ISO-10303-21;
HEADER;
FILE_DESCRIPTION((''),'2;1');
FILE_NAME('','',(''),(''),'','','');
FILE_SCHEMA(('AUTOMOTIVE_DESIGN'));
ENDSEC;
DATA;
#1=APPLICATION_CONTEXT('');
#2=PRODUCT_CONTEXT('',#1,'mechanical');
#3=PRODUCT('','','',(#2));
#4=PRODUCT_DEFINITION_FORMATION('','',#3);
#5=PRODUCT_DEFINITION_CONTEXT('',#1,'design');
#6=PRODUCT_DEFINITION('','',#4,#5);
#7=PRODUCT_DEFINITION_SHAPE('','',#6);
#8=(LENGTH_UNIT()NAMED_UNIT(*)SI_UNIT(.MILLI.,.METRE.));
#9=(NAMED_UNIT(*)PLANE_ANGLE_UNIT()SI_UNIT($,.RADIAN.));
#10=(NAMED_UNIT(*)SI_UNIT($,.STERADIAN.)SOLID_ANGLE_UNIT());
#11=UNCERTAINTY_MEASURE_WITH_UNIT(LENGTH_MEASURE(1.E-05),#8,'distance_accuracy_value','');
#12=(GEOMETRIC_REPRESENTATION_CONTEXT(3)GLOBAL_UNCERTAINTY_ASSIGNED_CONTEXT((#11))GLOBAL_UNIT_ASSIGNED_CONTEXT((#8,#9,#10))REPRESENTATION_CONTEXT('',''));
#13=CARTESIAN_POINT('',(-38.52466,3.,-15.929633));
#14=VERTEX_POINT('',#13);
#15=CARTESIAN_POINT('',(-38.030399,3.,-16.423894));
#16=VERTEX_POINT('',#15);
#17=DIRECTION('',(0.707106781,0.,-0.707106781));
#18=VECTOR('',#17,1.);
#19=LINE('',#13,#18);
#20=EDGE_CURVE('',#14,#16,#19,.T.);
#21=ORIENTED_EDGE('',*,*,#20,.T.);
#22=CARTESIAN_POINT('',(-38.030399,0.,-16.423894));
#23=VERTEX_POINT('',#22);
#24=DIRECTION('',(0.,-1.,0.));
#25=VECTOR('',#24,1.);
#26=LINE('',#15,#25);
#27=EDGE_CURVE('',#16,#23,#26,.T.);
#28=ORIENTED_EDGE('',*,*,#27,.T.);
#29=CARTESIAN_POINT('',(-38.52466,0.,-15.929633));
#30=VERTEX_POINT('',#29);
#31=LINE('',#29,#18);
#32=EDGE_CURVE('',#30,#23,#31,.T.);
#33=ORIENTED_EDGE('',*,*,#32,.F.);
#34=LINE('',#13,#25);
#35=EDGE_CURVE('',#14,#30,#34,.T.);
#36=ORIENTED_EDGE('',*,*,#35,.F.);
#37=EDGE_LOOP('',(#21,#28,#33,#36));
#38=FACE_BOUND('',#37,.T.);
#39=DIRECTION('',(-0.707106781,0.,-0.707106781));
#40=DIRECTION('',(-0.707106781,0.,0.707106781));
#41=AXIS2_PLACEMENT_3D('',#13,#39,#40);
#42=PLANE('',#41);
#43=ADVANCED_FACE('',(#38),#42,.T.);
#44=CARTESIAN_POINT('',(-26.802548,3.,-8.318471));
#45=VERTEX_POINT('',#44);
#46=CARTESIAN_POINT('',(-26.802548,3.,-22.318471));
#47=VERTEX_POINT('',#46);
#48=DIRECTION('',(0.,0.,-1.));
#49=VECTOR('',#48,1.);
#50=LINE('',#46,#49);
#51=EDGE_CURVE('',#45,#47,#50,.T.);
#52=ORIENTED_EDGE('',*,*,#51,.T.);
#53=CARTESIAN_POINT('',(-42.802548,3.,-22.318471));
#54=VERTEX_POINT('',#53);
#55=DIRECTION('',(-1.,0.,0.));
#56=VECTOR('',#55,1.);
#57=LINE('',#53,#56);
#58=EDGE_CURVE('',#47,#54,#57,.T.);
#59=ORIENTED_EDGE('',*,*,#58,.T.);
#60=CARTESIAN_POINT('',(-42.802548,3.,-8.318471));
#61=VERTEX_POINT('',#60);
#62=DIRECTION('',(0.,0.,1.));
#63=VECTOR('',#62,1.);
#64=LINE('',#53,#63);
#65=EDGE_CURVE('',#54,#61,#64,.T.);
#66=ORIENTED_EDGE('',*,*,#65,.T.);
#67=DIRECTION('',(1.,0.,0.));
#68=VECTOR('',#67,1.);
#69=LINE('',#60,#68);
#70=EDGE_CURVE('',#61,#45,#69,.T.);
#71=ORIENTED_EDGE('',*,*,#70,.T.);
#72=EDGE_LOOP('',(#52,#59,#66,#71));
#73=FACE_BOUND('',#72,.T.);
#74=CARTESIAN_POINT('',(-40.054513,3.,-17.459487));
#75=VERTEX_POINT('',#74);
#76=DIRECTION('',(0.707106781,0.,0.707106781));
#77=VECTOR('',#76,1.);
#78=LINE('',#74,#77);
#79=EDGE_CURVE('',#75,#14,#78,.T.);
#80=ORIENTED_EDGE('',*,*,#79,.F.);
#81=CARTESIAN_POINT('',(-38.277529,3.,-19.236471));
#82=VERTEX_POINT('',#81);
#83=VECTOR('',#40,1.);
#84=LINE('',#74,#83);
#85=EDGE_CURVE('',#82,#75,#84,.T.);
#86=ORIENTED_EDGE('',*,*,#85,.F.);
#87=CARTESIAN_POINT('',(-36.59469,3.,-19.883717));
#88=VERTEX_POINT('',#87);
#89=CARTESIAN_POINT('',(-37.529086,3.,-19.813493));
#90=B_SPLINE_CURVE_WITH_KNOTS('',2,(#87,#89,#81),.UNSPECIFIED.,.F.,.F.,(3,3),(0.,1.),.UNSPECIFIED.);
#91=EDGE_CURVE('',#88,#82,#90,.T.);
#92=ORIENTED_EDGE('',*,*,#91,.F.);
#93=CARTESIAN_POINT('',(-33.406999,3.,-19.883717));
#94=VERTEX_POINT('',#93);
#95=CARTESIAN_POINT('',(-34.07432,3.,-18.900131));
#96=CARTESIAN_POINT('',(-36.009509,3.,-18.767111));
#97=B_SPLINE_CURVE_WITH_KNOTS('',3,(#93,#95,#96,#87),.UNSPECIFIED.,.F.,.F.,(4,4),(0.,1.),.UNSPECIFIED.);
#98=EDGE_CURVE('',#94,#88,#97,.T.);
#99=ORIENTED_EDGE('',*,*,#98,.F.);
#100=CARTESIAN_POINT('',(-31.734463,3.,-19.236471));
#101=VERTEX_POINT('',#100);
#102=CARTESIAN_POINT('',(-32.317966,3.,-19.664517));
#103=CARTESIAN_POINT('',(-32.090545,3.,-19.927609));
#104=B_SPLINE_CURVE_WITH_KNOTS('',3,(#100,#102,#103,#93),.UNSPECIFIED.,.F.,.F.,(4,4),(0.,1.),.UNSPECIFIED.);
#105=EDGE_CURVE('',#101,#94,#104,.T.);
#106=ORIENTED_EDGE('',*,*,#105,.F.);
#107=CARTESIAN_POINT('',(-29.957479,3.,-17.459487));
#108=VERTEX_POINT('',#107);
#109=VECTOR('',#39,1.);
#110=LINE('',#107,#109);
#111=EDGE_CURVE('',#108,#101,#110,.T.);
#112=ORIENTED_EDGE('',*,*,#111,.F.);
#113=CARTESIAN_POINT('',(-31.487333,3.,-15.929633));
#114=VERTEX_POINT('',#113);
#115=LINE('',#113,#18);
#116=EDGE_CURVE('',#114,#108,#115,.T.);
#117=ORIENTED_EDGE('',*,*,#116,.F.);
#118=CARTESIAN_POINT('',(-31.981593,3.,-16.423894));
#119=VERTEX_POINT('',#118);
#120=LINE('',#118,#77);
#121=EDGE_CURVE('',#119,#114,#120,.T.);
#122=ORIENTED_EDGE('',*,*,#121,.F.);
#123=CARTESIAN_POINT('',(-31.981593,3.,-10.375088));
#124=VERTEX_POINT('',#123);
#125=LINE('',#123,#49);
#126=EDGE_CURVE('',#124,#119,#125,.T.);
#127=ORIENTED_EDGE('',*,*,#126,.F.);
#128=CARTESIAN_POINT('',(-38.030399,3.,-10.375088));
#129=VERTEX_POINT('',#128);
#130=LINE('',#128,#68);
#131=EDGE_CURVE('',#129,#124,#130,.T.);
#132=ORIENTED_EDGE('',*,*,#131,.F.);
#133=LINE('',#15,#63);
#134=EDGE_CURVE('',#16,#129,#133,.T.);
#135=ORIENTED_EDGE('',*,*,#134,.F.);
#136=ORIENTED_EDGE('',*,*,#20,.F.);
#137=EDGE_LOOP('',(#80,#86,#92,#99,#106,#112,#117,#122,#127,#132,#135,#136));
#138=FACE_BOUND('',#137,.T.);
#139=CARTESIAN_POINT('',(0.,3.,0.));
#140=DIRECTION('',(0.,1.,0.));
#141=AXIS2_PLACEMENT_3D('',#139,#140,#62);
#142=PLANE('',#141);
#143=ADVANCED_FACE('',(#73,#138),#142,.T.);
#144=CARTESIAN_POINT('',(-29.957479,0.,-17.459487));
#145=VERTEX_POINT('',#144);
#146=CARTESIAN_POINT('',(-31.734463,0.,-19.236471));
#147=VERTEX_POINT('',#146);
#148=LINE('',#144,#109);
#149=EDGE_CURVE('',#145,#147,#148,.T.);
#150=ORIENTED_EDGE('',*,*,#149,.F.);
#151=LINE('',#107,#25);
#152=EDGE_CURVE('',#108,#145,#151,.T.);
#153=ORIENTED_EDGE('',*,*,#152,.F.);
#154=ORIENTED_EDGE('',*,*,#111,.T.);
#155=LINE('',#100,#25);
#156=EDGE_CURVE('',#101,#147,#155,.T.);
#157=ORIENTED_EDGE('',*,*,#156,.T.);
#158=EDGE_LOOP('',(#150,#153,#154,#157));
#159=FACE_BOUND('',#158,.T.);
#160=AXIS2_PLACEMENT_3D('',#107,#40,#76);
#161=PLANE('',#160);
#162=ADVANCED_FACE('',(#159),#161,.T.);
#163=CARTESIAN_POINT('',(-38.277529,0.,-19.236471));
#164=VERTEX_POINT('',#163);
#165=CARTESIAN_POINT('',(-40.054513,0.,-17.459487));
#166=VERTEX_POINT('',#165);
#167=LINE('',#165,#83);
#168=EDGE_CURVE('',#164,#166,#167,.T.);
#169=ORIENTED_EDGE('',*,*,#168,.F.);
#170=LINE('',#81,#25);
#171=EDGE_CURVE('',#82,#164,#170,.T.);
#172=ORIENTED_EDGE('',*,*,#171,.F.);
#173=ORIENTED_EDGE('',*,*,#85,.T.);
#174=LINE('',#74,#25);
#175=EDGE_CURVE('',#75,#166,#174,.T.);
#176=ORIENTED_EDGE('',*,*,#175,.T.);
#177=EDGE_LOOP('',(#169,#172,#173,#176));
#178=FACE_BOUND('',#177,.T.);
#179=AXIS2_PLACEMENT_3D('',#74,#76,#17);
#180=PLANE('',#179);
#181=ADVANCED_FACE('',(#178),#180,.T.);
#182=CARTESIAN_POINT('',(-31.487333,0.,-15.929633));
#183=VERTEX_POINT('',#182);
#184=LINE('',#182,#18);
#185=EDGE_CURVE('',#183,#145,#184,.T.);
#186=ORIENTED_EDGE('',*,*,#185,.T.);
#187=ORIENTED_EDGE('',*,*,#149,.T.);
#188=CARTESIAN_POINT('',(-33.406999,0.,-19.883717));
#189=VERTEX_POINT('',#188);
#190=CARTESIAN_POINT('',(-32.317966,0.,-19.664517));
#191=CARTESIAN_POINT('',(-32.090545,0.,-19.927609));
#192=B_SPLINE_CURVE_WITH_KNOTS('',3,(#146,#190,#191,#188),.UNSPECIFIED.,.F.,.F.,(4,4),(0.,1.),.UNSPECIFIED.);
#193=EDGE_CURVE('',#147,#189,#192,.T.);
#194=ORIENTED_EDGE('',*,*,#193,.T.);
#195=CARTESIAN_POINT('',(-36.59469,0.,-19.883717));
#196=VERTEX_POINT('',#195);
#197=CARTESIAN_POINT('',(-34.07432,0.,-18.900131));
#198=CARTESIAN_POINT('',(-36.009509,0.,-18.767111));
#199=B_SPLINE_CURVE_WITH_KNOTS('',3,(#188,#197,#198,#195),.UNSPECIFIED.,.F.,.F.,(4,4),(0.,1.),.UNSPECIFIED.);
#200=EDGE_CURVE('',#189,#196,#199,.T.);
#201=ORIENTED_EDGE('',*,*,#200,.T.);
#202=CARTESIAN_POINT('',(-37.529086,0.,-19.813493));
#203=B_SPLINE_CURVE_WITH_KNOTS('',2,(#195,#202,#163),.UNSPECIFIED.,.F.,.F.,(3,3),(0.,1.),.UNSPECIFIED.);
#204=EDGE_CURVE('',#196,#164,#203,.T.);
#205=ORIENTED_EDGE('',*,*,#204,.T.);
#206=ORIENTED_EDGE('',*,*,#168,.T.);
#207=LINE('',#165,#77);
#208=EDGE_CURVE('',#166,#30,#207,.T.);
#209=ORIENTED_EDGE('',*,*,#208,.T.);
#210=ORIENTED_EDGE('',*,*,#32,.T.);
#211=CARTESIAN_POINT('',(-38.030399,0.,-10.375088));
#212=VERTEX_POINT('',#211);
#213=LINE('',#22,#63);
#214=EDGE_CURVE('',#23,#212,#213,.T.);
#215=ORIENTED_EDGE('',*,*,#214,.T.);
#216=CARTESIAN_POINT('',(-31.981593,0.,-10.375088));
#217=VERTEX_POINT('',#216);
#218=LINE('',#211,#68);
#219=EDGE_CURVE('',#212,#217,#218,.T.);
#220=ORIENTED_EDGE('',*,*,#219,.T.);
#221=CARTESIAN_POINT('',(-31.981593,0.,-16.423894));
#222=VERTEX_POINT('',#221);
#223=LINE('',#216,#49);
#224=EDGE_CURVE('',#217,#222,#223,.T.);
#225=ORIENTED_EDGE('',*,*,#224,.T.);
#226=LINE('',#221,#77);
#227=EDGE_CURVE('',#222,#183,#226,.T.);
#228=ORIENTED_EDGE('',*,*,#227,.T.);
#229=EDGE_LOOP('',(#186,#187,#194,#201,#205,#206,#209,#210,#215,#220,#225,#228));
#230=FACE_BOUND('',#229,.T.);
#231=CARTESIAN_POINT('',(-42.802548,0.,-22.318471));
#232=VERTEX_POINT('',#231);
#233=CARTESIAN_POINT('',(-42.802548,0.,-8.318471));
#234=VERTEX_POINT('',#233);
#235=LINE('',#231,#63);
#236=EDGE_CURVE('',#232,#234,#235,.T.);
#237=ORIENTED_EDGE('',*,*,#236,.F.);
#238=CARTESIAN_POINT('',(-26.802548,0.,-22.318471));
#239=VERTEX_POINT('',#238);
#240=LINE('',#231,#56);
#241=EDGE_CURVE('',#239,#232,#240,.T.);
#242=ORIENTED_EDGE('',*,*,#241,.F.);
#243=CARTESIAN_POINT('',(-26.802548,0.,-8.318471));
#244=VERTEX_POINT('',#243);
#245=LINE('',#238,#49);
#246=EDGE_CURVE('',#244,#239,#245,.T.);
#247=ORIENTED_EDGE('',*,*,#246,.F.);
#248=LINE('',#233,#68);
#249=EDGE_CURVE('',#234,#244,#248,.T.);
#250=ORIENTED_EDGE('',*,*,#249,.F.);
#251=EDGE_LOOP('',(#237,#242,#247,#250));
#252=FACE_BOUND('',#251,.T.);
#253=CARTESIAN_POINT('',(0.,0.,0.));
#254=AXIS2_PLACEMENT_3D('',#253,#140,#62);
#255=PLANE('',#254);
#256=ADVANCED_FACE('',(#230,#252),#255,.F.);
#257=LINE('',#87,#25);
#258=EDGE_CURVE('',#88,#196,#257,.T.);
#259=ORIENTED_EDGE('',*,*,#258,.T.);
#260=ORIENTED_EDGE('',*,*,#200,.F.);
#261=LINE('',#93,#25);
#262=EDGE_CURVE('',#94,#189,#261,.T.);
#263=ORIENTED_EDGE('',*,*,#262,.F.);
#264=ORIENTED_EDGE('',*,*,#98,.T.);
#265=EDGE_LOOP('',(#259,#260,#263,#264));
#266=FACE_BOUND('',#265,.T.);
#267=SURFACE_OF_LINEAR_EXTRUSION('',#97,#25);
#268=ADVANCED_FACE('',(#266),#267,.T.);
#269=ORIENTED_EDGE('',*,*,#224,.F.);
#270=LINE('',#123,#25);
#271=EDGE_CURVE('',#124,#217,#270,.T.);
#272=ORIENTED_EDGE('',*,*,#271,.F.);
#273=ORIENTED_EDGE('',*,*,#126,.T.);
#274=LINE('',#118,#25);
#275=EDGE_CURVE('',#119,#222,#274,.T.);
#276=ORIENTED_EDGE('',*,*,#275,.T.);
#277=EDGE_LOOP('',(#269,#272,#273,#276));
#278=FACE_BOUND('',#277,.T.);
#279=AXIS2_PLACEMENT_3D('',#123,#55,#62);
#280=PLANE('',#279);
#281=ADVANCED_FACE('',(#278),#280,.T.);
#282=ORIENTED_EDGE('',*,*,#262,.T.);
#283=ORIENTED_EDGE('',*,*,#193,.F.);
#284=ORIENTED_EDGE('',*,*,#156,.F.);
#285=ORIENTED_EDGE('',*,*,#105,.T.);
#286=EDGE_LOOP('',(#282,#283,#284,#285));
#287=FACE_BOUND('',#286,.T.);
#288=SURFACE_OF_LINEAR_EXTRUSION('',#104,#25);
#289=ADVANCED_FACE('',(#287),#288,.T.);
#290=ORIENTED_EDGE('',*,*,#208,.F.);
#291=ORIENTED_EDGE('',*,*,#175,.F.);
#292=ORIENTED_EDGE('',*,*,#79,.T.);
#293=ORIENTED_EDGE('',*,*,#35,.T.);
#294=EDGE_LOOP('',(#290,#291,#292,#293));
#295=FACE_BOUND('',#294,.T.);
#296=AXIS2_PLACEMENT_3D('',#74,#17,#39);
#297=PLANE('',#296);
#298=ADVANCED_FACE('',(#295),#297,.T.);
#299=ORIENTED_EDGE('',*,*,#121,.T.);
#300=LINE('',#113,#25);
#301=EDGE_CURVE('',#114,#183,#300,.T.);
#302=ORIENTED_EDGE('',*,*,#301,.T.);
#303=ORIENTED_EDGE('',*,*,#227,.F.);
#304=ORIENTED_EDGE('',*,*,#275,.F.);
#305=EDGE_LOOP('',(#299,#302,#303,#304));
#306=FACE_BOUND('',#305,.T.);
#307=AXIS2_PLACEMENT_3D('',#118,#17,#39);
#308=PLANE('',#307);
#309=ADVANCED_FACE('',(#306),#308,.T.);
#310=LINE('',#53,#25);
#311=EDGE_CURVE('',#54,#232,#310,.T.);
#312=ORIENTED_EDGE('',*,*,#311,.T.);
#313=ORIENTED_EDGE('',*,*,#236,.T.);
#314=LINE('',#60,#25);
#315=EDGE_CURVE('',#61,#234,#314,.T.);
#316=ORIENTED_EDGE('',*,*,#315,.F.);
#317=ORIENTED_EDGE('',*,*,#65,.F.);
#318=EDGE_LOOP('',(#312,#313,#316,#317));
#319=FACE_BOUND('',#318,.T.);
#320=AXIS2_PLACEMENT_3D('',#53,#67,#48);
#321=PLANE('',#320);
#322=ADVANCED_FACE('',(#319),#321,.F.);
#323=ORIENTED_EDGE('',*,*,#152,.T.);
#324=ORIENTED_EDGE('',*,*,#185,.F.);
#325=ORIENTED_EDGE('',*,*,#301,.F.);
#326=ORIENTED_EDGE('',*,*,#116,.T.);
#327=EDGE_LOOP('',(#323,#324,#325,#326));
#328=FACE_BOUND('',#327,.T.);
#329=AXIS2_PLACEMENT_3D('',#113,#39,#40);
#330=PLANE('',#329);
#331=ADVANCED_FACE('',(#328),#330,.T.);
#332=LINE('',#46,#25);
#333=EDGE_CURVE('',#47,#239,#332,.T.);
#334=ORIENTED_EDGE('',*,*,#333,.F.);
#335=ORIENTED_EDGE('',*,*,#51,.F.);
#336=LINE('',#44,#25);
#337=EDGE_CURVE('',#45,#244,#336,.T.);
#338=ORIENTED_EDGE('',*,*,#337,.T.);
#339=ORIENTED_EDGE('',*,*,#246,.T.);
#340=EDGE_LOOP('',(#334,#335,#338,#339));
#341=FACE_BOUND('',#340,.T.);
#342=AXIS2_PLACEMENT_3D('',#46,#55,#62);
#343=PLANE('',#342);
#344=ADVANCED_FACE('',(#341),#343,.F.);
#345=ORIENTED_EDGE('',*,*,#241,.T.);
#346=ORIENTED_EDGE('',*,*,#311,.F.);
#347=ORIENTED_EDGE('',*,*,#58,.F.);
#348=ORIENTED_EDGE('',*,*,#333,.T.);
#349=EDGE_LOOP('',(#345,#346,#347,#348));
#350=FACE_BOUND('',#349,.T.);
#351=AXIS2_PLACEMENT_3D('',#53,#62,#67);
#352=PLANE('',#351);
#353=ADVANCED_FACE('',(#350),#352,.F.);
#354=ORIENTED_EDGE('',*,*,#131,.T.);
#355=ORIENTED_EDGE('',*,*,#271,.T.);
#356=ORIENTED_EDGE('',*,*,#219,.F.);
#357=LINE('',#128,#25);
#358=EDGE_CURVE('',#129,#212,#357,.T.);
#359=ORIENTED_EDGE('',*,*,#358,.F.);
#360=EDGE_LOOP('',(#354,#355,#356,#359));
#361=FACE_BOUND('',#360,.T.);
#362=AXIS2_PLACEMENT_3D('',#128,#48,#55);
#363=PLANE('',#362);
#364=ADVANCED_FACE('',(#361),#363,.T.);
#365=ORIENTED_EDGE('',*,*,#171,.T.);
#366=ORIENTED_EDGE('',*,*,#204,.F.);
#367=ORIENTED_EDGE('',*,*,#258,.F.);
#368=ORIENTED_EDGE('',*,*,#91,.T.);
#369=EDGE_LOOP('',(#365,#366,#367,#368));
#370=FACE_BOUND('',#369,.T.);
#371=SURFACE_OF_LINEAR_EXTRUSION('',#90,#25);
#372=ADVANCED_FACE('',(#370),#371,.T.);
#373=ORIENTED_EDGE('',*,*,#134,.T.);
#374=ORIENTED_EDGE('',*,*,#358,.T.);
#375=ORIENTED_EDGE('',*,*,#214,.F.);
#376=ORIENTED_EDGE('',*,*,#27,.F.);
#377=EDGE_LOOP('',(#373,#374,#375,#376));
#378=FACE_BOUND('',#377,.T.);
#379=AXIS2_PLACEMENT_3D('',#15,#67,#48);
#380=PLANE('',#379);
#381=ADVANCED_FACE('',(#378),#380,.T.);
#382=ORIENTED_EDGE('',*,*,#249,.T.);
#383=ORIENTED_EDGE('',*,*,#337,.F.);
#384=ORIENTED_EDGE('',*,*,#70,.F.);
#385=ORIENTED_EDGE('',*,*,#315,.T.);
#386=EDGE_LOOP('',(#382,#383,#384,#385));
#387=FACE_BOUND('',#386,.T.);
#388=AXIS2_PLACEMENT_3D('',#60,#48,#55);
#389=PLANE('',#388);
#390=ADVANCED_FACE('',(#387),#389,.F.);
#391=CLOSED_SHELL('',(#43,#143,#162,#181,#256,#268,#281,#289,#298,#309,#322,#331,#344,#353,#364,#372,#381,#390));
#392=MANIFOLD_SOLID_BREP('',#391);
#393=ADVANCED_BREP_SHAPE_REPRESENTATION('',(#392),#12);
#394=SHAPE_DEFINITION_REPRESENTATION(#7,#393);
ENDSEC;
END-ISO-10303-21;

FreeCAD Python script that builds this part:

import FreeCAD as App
import Part
import Sketcher

doc = App.newDocument("Part")
params = doc.addObject("Spreadsheet::Sheet", "Params")
for row, (alias, value) in enumerate([
    ("sketch1_width", "16 mm"),
    ("sketch1_height", "14 mm"),
    ("pad1_length", "3 mm"),
], start=1):
    params.set(f"A{row}", alias)
    params.set(f"B{row}", "=" + value)
    params.setAlias(f"B{row}", alias)

body = doc.addObject("PartDesign::Body", "Body")

# Sketch on XZ plane
sketch1 = doc.addObject("Sketcher::SketchObject", "Sketch")
body.addObject(sketch1)
sketch1.AttachmentSupport = (doc.XZ_Plane, [""])
sketch1.MapMode = "FlatFace"
sketch1.addGeometry(Part.LineSegment(App.Vector(-42.802548, -22.318471, 0), App.Vector(-42.802548, -8.318471, 0)), False)
sketch1.addGeometry(Part.LineSegment(App.Vector(-42.802548, -8.318471, 0), App.Vector(-26.802548, -8.318471, 0)), False)
sketch1.addGeometry(Part.LineSegment(App.Vector(-26.802548, -8.318471, 0), App.Vector(-26.802548, -22.318471, 0)), False)
sketch1.addGeometry(Part.LineSegment(App.Vector(-26.802548, -22.318471, 0), App.Vector(-42.802548, -22.318471, 0)), False)
sketch1.addGeometry(Part.LineSegment(App.Vector(-38.52466, -15.929633, 0), App.Vector(-40.054513, -17.459487, 0)), False)
sketch1.addGeometry(Part.LineSegment(App.Vector(-40.054513, -17.459487, 0), App.Vector(-38.277529, -19.236471, 0)), False)
sketch1.addGeometry(Part.BSplineCurve([App.Vector(-38.277529, -19.236471, 0), App.Vector(-37.529086, -19.813493, 0), App.Vector(-36.59469, -19.883717, 0)], [3, 3], [0, 1], False, 2, [1, 1, 1], False), False)
sketch1.addGeometry(Part.BSplineCurve([App.Vector(-36.59469, -19.883717, 0), App.Vector(-36.009509, -18.767111, 0), App.Vector(-34.07432, -18.900131, 0), App.Vector(-33.406999, -19.883717, 0)], [4, 4], [0, 1], False, 3, [1, 1, 1, 1], False), False)
sketch1.addGeometry(Part.BSplineCurve([App.Vector(-31.734463, -19.236471, 0), App.Vector(-32.317966, -19.664517, 0), App.Vector(-32.090545, -19.927609, 0), App.Vector(-33.406999, -19.883717, 0)], [4, 4], [0, 1], False, 3, [1, 1, 1, 1], False), False)
sketch1.addGeometry(Part.LineSegment(App.Vector(-31.734463, -19.236471, 0), App.Vector(-29.957479, -17.459487, 0)), False)
sketch1.addGeometry(Part.LineSegment(App.Vector(-29.957479, -17.459487, 0), App.Vector(-31.487333, -15.929633, 0)), False)
sketch1.addGeometry(Part.LineSegment(App.Vector(-31.487333, -15.929633, 0), App.Vector(-31.981593, -16.423894, 0)), False)
sketch1.addGeometry(Part.LineSegment(App.Vector(-31.981593, -16.423894, 0), App.Vector(-31.981593, -10.375088, 0)), False)
sketch1.addGeometry(Part.LineSegment(App.Vector(-31.981593, -10.375088, 0), App.Vector(-38.030399, -10.375088, 0)), False)
sketch1.addGeometry(Part.LineSegment(App.Vector(-38.030399, -10.375088, 0), App.Vector(-38.030399, -16.423894, 0)), False)
sketch1.addGeometry(Part.LineSegment(App.Vector(-38.030399, -16.423894, 0), App.Vector(-38.52466, -15.929633, 0)), False)
sketch1.addConstraint(Sketcher.Constraint("Block", 6))
sketch1.addConstraint(Sketcher.Constraint("Block", 7))
sketch1.addConstraint(Sketcher.Constraint("Block", 8))
sketch1.addConstraint(Sketcher.Constraint("Coincident", 0, 2, 1, 1))
sketch1.addConstraint(Sketcher.Constraint("Coincident", 1, 2, 2, 1))
sketch1.addConstraint(Sketcher.Constraint("Coincident", 2, 2, 3, 1))
sketch1.addConstraint(Sketcher.Constraint("Coincident", 3, 2, 0, 1))
sketch1.addConstraint(Sketcher.Constraint("Coincident", 4, 2, 5, 1))
sketch1.addConstraint(Sketcher.Constraint("Coincident", 5, 2, 6, 1))
sketch1.addConstraint(Sketcher.Constraint("Coincident", 8, 1, 9, 1))
sketch1.addConstraint(Sketcher.Constraint("Coincident", 9, 2, 10, 1))
sketch1.addConstraint(Sketcher.Constraint("Coincident", 10, 2, 11, 1))
sketch1.addConstraint(Sketcher.Constraint("Coincident", 11, 2, 12, 1))
sketch1.addConstraint(Sketcher.Constraint("Coincident", 12, 2, 13, 1))
sketch1.addConstraint(Sketcher.Constraint("Coincident", 13, 2, 14, 1))
sketch1.addConstraint(Sketcher.Constraint("Coincident", 14, 2, 15, 1))
sketch1.addConstraint(Sketcher.Constraint("Coincident", 15, 2, 4, 1))
sketch1.addConstraint(Sketcher.Constraint("Vertical", 0))
sketch1.addConstraint(Sketcher.Constraint("Horizontal", 1))
sketch1.addConstraint(Sketcher.Constraint("Vertical", 2))
sketch1.addConstraint(Sketcher.Constraint("Horizontal", 3))
sketch1.addConstraint(Sketcher.Constraint("Vertical", 12))
sketch1.addConstraint(Sketcher.Constraint("Horizontal", 13))
sketch1.addConstraint(Sketcher.Constraint("Vertical", 14))
sketch1.addConstraint(Sketcher.Constraint("DistanceX", 1, 1, 1, 2, 16.0))
sketch1.addConstraint(Sketcher.Constraint("DistanceY", 0, 1, 0, 2, 14.0))
sketch1.addConstraint(Sketcher.Constraint("DistanceY", 3, 2, 5, 2, 3.082001))
sketch1.addConstraint(Sketcher.Constraint("DistanceX", 13, 2, -1, 1, 38.030399))
sketch1.addConstraint(Sketcher.Constraint("DistanceY", 9, 2, 12, 2, 7.084399))
sketch1.addConstraint(Sketcher.Constraint("DistanceY", 4, 2, 12, 2, 7.084399))
sketch1.addConstraint(Sketcher.Constraint("Distance", 4, 2.16354))
sketch1.addConstraint(Sketcher.Constraint("Distance", 10, 2.16354))
sketch1.addConstraint(Sketcher.Constraint("Distance", 11, 0.69899))
sketch1.addConstraint(Sketcher.Constraint("Distance", 15, 0.69899))
sketch1.addConstraint(Sketcher.Constraint("DistanceX", 13, 2, 13, 1, 6.048806))
sketch1.addConstraint(Sketcher.Constraint("DistanceY", 12, 1, 12, 2, 6.048806))
sketch1.addConstraint(Sketcher.Constraint("DistanceY", 14, 2, 14, 1, 6.048806))
sketch1.addConstraint(Sketcher.Constraint("DistanceX", 9, 2, -1, 1, 29.957479))
sketch1.addConstraint(Sketcher.Constraint("DistanceX", 15, 2, -1, 1, 38.52466))
sketch1.addConstraint(Sketcher.Constraint("DistanceX", 3, 2, 5, 2, 4.525018))
sketch1.addConstraint(Sketcher.Constraint("Distance", 5, 2.513035))
sketch1.setExpression("Constraints[24]", "Params.sketch1_width")
sketch1.setExpression("Constraints[25]", "Params.sketch1_height")
pad1 = doc.addObject("PartDesign::Pad", "Pad")
body.addObject(pad1)
pad1.Profile = sketch1
pad1.setExpression("Length", "Params.pad1_length")
pad1.Reversed = True

doc.recompute()
